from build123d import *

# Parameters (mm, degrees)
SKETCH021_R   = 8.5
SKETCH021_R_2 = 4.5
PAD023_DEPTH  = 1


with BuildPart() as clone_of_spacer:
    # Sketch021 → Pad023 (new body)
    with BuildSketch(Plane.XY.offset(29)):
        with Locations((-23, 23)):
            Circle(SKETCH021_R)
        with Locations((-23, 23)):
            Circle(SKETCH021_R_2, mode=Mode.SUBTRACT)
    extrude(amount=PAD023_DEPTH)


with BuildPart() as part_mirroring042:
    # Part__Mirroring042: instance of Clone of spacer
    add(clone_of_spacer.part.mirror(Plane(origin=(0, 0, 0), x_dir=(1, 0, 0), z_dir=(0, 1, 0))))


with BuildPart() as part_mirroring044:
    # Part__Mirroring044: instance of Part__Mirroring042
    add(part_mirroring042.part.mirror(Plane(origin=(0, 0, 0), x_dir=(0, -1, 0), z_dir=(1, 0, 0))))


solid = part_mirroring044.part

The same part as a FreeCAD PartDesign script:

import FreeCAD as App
import Part
import Sketcher

V = App.Vector

doc = App.newDocument("Part")
body = doc.addObject("PartDesign::Body", "Body")

# Sketch on XY plane
sketch1 = body.newObject("Sketcher::SketchObject", "Sketch")
sketch1.AttachmentSupport = (doc.getObject("XY_Plane"), [""])
sketch1.MapMode = "FlatFace"
sketch1.AttachmentOffset = App.Placement(V(0, 0, 29), App.Rotation())
sketch1.addGeometry(Part.Circle(V(-23, 23, 0), V(0, 0, 1), 8.5), False)
sketch1.addGeometry(Part.Circle(V(-23, 23, 0), V(0, 0, 1), 4.5), False)
sketch1.addConstraint(Sketcher.Constraint("Coincident", 1, 3, 0, 3))
sketch1.addConstraint(Sketcher.Constraint("Diameter", 0, 17.0))
sketch1.addConstraint(Sketcher.Constraint("Diameter", 1, 9.0))
sketch1.addConstraint(Sketcher.Constraint("DistanceX", 0, 3, -1, 1, 23.0))
sketch1.addConstraint(Sketcher.Constraint("DistanceY", -1, 1, 0, 3, 23.0))
pad1 = body.newObject("PartDesign::Pad", "Pad")
pad1.Profile = sketch1
pad1.Length = 1
body2 = doc.addObject("PartDesign::Body", "Body001")
doc.recompute()

mirroring = doc.addObject("Part::Mirroring", "Mirroring")
mirroring.Source = body
mirroring.Base = V(0, 0, 0)
mirroring.Normal = V(0, 1, 0)
body2.BaseFeature = mirroring
doc.recompute()
body3 = doc.addObject("PartDesign::Body", "Body002")
doc.recompute()

mirroring2 = doc.addObject("Part::Mirroring", "Mirroring001")
mirroring2.Source = body2
mirroring2.Base = V(0, 0, 0)
mirroring2.Normal = V(1, 0, 0)
body3.BaseFeature = mirroring2
doc.recompute()
body.Visibility = False
body2.Visibility = False
mirroring.Visibility = False
mirroring2.Visibility = False

doc.recompute()
